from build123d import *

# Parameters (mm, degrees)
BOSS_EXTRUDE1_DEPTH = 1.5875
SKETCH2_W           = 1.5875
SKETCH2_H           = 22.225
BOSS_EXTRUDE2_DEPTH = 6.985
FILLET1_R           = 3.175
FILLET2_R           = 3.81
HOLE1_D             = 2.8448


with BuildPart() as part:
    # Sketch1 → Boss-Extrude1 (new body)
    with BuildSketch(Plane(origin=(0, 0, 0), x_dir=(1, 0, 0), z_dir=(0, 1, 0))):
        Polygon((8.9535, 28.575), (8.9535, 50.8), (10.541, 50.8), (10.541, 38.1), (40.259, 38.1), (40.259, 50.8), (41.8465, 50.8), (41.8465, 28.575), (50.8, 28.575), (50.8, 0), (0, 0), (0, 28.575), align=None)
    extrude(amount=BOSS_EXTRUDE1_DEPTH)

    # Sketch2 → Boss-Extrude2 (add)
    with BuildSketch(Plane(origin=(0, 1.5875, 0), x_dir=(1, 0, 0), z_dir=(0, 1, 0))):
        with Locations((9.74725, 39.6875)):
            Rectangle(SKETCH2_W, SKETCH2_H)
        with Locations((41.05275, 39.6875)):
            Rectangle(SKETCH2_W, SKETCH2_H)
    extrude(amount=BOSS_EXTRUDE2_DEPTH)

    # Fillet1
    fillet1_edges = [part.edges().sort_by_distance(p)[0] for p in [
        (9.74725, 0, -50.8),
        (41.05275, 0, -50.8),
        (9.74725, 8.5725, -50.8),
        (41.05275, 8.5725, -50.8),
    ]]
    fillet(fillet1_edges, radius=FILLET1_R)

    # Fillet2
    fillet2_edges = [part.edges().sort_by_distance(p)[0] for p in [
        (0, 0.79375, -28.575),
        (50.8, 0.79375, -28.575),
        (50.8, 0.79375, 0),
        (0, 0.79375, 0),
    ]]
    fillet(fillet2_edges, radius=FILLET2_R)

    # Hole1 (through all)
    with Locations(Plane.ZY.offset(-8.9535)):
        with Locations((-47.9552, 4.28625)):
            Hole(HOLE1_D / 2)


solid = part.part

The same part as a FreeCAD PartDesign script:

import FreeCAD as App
import Part
import Sketcher
from FreeCAD import Vector
Q = App.Units.Quantity


def edges_at(feature, points):
    """Names of the edges that pass closest to the given points."""
    edges = feature.Shape.Edges
    near = lambda p: min(range(len(edges)), key=lambda i: edges[i].distToShape(Part.Vertex(*p))[0])
    return sorted({f"Edge{near(p) + 1}" for p in points})

doc = App.newDocument("Part")
params = doc.addObject("Spreadsheet::Sheet", "Params")
for row, (alias, value) in enumerate([
    ("sketch1_width", "2 in"),
    ("sketch1_height", "0.5 in"),
    ("sketch1_width2", "1.17 in"),
    ("sketch1_width3", "0.0625 in"),
    ("sketch1_height2", "0.875 in"),
    ("pad1_length", "0.0625 in"),
    ("sketch2_width", "0.0625 in"),
    ("sketch2_height", "0.875 in"),
    ("pad2_length", "0.275 in"),
    ("fillet_radius", "0.125 in"),
    ("fillet2_radius", "0.15 in"),
    ("sketch3_diameter", "0.112 in"),
    ("hole_diameter", "0.112 in"),
], start=1):
    params.set(f"A{row}", alias)
    params.set(f"B{row}", "=" + value)
    params.setAlias(f"B{row}", alias)

body = doc.addObject("PartDesign::Body", "Body")

sketch1 = body.newObject("Sketcher::SketchObject", "Sketch")
sketch1.AttachmentSupport = (doc.getObject("XZ_Plane"), [""])
sketch1.MapMode = "FlatFace"
sketch1.addGeometry([
    Part.LineSegment(Vector(9, -50.8, 0), Vector(9, -28.6, 0)),
    Part.LineSegment(Vector(9, -28.6, 0), Vector(0, -28.6, 0)),
    Part.LineSegment(Vector(0, -28.6, 0), Vector(0, 0, 0)),
    Part.LineSegment(Vector(0, 0, 0), Vector(50.8, 0, 0)),
    Part.LineSegment(Vector(50.8, 0, 0), Vector(50.8, -28.6, 0)),
    Part.LineSegment(Vector(50.8, -28.6, 0), Vector(41.8, -28.6, 0)),
    Part.LineSegment(Vector(41.8, -28.6, 0), Vector(41.8, -50.8, 0)),
    Part.LineSegment(Vector(41.8, -50.8, 0), Vector(40.3, -50.8, 0)),
    Part.LineSegment(Vector(40.3, -50.8, 0), Vector(40.3, -38.1, 0)),
    Part.LineSegment(Vector(40.3, -38.1, 0), Vector(10.5, -38.1, 0)),
    Part.LineSegment(Vector(10.5, -38.1, 0), Vector(10.5, -50.8, 0)),
    Part.LineSegment(Vector(10.5, -50.8, 0), Vector(9, -50.8, 0)),
], False)
sketch1.addConstraint([
    Sketcher.Constraint("Coincident", 0, 2, 1, 1),
    Sketcher.Constraint("Coincident", 1, 2, 2, 1),
    Sketcher.Constraint("Coincident", 2, 2, 3, 1),
    Sketcher.Constraint("Coincident", 3, 2, 4, 1),
    Sketcher.Constraint("Coincident", 4, 2, 5, 1),
    Sketcher.Constraint("Coincident", 5, 2, 6, 1),
    Sketcher.Constraint("Coincident", 6, 2, 7, 1),
    Sketcher.Constraint("Coincident", 7, 2, 8, 1),
    Sketcher.Constraint("Coincident", 8, 2, 9, 1),
    Sketcher.Constraint("Coincident", 9, 2, 10, 1),
    Sketcher.Constraint("Coincident", 10, 2, 11, 1),
    Sketcher.Constraint("Coincident", 11, 2, 0, 1),
    Sketcher.Constraint("Vertical", 0),
    Sketcher.Constraint("Horizontal", 1),
    Sketcher.Constraint("Vertical", 2),
    Sketcher.Constraint("Horizontal", 3),
    Sketcher.Constraint("Vertical", 4),
    Sketcher.Constraint("Horizontal", 5),
    Sketcher.Constraint("Vertical", 6),
    Sketcher.Constraint("Horizontal", 7),
    Sketcher.Constraint("Vertical", 8),
    Sketcher.Constraint("Horizontal", 9),
    Sketcher.Constraint("Vertical", 10),
    Sketcher.Constraint("Horizontal", 11),
    Sketcher.Constraint("Coincident", 2, 2, -1, 1),
    Sketcher.Constraint("Horizontal", 1, 2, 4, 2),
    Sketcher.Constraint("Horizontal", 7, 2, 10, 2),
    Sketcher.Constraint("Equal", 1, 5),
    Sketcher.Constraint("Equal", 7, 11),
    Sketcher.Constraint("DistanceX", 3, 1, 3, 2, Q("2 in")),
    Sketcher.Constraint("DistanceY", 8, 1, 8, 2, Q("0.5 in")),
    Sketcher.Constraint("DistanceY", 6, 2, -1, 1, Q("2 in")),
    Sketcher.Constraint("DistanceX", 9, 2, 9, 1, Q("1.17 in")),
    Sketcher.Constraint("DistanceX", 7, 2, 7, 1, Q("0.0625 in")),
    Sketcher.Constraint("DistanceY", 0, 1, 0, 2, Q("0.875 in")),
])
sketch1.setExpression("Constraints[29]", "Params.sketch1_width")
sketch1.setExpression("Constraints[30]", "Params.sketch1_height")
sketch1.setExpression("Constraints[32]", "Params.sketch1_width2")
sketch1.setExpression("Constraints[33]", "Params.sketch1_width3")
sketch1.setExpression("Constraints[34]", "Params.sketch1_height2")
pad1 = body.newObject("PartDesign::Pad", "Pad")
pad1.Profile = sketch1
pad1.setExpression("Length", "Params.pad1_length")
pad1.Reversed = True

sketch2 = body.newObject("Sketcher::SketchObject", "Sketch001")
sketch2.AttachmentSupport = (doc.getObject("XZ_Plane"), [""])
sketch2.MapMode = "FlatFace"
sketch2.AttachmentOffset = App.Placement(Vector(0, 0, -0.0625 * 25.4), App.Rotation())
sketch2.addGeometry([
    Part.LineSegment(Vector(9, -50.8, 0), Vector(9, -28.6, 0)),
    Part.LineSegment(Vector(9, -28.6, 0), Vector(10.5, -28.6, 0)),
    Part.LineSegment(Vector(10.5, -28.6, 0), Vector(10.5, -50.8, 0)),
    Part.LineSegment(Vector(10.5, -50.8, 0), Vector(9, -50.8, 0)),
    Part.LineSegment(Vector(40.3, -50.8, 0), Vector(40.3, -28.6, 0)),
    Part.LineSegment(Vector(40.3, -28.6, 0), Vector(41.8, -28.6, 0)),
    Part.LineSegment(Vector(41.8, -28.6, 0), Vector(41.8, -50.8, 0)),
    Part.LineSegment(Vector(41.8, -50.8, 0), Vector(40.3, -50.8, 0)),
], False)
sketch2.addConstraint([
    Sketcher.Constraint("Coincident", 0, 2, 1, 1),
    Sketcher.Constraint("Coincident", 1, 2, 2, 1),
    Sketcher.Constraint("Coincident", 2, 2, 3, 1),
    Sketcher.Constraint("Coincident", 3, 2, 0, 1),
    Sketcher.Constraint("Coincident", 4, 2, 5, 1),
    Sketcher.Constraint("Coincident", 5, 2, 6, 1),
    Sketcher.Constraint("Coincident", 6, 2, 7, 1),
    Sketcher.Constraint("Coincident", 7, 2, 4, 1),
    Sketcher.Constraint("Vertical", 0),
    Sketcher.Constraint("Horizontal", 1),
    Sketcher.Constraint("Vertical", 2),
    Sketcher.Constraint("Horizontal", 3),
    Sketcher.Constraint("Vertical", 4),
    Sketcher.Constraint("Horizontal", 5),
    Sketcher.Constraint("Vertical", 6),
    Sketcher.Constraint("Horizontal", 7),
    Sketcher.Constraint("Horizontal", 1, 2, 4, 2),
    Sketcher.Constraint("Horizontal", 3, 2, 6, 2),
    Sketcher.Constraint("Equal", 3, 5),
    Sketcher.Constraint("DistanceY", 2, 2, -1, 1, Q("2 in")),
    Sketcher.Constraint("DistanceX", 1, 1, 1, 2, Q("0.0625 in")),
    Sketcher.Constraint("DistanceY", 0, 1, 0, 2, Q("0.875 in")),
    Sketcher.Constraint("DistanceX", 1, 2, 4, 2, Q("1.17 in")),
    Sketcher.Constraint("DistanceX", -1, 1, 1, 2, Q("0.415 in")),
])
sketch2.setExpression("Constraints[20]", "Params.sketch2_width")
sketch2.setExpression("Constraints[21]", "Params.sketch2_height")
pad2 = body.newObject("PartDesign::Pad", "Pad001")
pad2.Profile = sketch2
pad2.setExpression("Length", "Params.pad2_length")
pad2.Reversed = True
doc.recompute()

fillet = body.newObject("PartDesign::Fillet", "Fillet")
fillet.Base = (pad2, edges_at(pad2, [
    (9.747, 0, -50.8),
    (41.053, 0, -50.8),
    (9.747, 8.572, -50.8),
    (41.053, 8.572, -50.8),
]))
fillet.setExpression("Radius", "Params.fillet_radius")
doc.recompute()

fillet2 = body.newObject("PartDesign::Fillet", "Fillet001")
fillet2.Base = (fillet, edges_at(fillet, [
    (0, 0.794, -28.575),
    (50.8, 0.794, -28.575),
    (50.8, 0.794, 0),
    (0, 0.794, 0),
]))
fillet2.setExpression("Radius", "Params.fillet2_radius")

sketch3 = body.newObject("Sketcher::SketchObject", "Sketch002")
sketch3.AttachmentSupport = (doc.getObject("YZ_Plane"), [""])
sketch3.MapMode = "FlatFace"
sketch3.AttachmentOffset = App.Placement(Vector(0, 0, 0.3525 * 25.4), App.Rotation())
sketch3.addGeometry(Part.Circle(Vector(4.3, -48, 0), Vector(0, 0, 1), 1.4), False)
sketch3.addConstraint([
    Sketcher.Constraint("Diameter", 0, Q("0.112 in")),
    Sketcher.Constraint("DistanceY", 0, 3, -1, 1, Q("1.888 in")),
    Sketcher.Constraint("DistanceX", -1, 1, 0, 3, Q("4.28625 mm")),
])
sketch3.setExpression("Constraints[0]", "Params.sketch3_diameter")
doc.recompute()
hole = body.newObject("PartDesign::Hole", "Hole")
hole.Profile = sketch3
hole.ThreadType = "None"
hole.setExpression("Diameter", "Params.hole_diameter")
hole.DepthType = "ThroughAll"
hole.Reversed = True

doc.recompute()
